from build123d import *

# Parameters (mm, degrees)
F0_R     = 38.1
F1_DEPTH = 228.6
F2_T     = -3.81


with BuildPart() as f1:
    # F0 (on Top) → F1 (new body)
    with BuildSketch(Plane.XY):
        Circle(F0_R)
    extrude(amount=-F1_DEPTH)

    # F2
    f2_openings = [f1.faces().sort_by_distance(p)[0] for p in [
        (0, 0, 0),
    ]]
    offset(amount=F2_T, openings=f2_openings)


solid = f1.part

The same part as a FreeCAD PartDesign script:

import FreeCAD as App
import Part
import Sketcher

V = App.Vector
Q = App.Units.Quantity


def faces_at(feature, points):
    """Names of the faces that lie closest to the given points."""
    faces = feature.Shape.Faces
    near = lambda p: min(range(len(faces)), key=lambda i: faces[i].distToShape(Part.Vertex(*p))[0])
    return sorted({f"Face{near(p) + 1}" for p in points})

doc = App.newDocument("Part")
body = doc.addObject("PartDesign::Body", "Body")

# Sketch on XY plane
sketch1 = doc.addObject("Sketcher::SketchObject", "Sketch")
body.addObject(sketch1)
sketch1.AttachmentSupport = (doc.XY_Plane, [""])
sketch1.MapMode = "FlatFace"
sketch1.addGeometry(Part.Circle(V(0, 0, 0), V(0, 0, 1), 38), False)
sketch1.addConstraint(Sketcher.Constraint("Coincident", 0, 3, -1, 1))
sketch1.addConstraint(Sketcher.Constraint("Diameter", 0, Q("3 in")))
pad1 = doc.addObject("PartDesign::Pad", "Pad")
body.addObject(pad1)
pad1.Profile = sketch1
pad1.Length = Q("9 in")
pad1.Reversed = True
doc.recompute()

thickness = doc.addObject("PartDesign::Thickness", "Thickness")
body.addObject(thickness)
thickness.Base = (pad1, faces_at(pad1, [(0, 0, 0)]))
thickness.Value = Q("0.15 in")
thickness.Reversed = True
thickness.Join = "Arc"

doc.recompute()
